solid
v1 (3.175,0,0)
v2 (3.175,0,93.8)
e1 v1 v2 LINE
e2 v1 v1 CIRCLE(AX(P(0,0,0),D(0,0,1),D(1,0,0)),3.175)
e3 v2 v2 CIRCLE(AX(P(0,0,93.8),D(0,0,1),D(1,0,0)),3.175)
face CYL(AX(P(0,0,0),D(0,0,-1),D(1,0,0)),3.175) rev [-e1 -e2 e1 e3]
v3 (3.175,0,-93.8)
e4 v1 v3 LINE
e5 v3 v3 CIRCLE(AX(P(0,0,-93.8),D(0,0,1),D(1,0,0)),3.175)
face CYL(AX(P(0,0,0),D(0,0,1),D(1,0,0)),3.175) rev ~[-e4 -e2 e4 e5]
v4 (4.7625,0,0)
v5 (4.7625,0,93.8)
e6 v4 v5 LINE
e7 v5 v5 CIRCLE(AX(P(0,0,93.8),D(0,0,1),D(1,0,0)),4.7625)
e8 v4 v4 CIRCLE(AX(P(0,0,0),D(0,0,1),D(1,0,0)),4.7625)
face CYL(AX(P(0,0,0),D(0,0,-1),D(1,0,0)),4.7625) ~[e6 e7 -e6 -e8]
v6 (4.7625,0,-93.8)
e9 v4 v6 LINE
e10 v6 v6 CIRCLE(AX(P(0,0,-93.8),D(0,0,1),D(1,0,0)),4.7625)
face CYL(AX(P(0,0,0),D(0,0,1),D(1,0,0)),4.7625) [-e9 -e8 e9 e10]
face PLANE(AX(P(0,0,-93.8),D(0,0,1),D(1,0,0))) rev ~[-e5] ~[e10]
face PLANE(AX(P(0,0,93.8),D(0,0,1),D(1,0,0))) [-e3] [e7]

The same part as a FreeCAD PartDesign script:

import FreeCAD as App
import Part
import Sketcher

V = App.Vector
Q = App.Units.Quantity

doc = App.newDocument("Part")
body = doc.addObject("PartDesign::Body", "Body")

# Sketch on XY plane
sketch1 = body.newObject("Sketcher::SketchObject", "Sketch")
sketch1.AttachmentSupport = (doc.getObject("XY_Plane"), [""])
sketch1.MapMode = "FlatFace"
sketch1.addGeometry(Part.Circle(V(0, 0, 0), V(0, 0, 1), 4.8), False)
sketch1.addGeometry(Part.Circle(V(0, 0, 0), V(0, 0, 1), 3.2), False)
sketch1.addConstraint(Sketcher.Constraint("Coincident", 0, 3, -1, 1))
sketch1.addConstraint(Sketcher.Constraint("Coincident", 1, 3, -1, 1))
sketch1.addConstraint(Sketcher.Constraint("Diameter", 1, Q("0.25 in")))
sketch1.addConstraint(Sketcher.Constraint("Diameter", 0, Q("0.375 in")))
pad1 = body.newObject("PartDesign::Pad", "Pad")
pad1.Profile = sketch1
pad1.Length = 187.6
pad1.Midplane = True

doc.recompute()
